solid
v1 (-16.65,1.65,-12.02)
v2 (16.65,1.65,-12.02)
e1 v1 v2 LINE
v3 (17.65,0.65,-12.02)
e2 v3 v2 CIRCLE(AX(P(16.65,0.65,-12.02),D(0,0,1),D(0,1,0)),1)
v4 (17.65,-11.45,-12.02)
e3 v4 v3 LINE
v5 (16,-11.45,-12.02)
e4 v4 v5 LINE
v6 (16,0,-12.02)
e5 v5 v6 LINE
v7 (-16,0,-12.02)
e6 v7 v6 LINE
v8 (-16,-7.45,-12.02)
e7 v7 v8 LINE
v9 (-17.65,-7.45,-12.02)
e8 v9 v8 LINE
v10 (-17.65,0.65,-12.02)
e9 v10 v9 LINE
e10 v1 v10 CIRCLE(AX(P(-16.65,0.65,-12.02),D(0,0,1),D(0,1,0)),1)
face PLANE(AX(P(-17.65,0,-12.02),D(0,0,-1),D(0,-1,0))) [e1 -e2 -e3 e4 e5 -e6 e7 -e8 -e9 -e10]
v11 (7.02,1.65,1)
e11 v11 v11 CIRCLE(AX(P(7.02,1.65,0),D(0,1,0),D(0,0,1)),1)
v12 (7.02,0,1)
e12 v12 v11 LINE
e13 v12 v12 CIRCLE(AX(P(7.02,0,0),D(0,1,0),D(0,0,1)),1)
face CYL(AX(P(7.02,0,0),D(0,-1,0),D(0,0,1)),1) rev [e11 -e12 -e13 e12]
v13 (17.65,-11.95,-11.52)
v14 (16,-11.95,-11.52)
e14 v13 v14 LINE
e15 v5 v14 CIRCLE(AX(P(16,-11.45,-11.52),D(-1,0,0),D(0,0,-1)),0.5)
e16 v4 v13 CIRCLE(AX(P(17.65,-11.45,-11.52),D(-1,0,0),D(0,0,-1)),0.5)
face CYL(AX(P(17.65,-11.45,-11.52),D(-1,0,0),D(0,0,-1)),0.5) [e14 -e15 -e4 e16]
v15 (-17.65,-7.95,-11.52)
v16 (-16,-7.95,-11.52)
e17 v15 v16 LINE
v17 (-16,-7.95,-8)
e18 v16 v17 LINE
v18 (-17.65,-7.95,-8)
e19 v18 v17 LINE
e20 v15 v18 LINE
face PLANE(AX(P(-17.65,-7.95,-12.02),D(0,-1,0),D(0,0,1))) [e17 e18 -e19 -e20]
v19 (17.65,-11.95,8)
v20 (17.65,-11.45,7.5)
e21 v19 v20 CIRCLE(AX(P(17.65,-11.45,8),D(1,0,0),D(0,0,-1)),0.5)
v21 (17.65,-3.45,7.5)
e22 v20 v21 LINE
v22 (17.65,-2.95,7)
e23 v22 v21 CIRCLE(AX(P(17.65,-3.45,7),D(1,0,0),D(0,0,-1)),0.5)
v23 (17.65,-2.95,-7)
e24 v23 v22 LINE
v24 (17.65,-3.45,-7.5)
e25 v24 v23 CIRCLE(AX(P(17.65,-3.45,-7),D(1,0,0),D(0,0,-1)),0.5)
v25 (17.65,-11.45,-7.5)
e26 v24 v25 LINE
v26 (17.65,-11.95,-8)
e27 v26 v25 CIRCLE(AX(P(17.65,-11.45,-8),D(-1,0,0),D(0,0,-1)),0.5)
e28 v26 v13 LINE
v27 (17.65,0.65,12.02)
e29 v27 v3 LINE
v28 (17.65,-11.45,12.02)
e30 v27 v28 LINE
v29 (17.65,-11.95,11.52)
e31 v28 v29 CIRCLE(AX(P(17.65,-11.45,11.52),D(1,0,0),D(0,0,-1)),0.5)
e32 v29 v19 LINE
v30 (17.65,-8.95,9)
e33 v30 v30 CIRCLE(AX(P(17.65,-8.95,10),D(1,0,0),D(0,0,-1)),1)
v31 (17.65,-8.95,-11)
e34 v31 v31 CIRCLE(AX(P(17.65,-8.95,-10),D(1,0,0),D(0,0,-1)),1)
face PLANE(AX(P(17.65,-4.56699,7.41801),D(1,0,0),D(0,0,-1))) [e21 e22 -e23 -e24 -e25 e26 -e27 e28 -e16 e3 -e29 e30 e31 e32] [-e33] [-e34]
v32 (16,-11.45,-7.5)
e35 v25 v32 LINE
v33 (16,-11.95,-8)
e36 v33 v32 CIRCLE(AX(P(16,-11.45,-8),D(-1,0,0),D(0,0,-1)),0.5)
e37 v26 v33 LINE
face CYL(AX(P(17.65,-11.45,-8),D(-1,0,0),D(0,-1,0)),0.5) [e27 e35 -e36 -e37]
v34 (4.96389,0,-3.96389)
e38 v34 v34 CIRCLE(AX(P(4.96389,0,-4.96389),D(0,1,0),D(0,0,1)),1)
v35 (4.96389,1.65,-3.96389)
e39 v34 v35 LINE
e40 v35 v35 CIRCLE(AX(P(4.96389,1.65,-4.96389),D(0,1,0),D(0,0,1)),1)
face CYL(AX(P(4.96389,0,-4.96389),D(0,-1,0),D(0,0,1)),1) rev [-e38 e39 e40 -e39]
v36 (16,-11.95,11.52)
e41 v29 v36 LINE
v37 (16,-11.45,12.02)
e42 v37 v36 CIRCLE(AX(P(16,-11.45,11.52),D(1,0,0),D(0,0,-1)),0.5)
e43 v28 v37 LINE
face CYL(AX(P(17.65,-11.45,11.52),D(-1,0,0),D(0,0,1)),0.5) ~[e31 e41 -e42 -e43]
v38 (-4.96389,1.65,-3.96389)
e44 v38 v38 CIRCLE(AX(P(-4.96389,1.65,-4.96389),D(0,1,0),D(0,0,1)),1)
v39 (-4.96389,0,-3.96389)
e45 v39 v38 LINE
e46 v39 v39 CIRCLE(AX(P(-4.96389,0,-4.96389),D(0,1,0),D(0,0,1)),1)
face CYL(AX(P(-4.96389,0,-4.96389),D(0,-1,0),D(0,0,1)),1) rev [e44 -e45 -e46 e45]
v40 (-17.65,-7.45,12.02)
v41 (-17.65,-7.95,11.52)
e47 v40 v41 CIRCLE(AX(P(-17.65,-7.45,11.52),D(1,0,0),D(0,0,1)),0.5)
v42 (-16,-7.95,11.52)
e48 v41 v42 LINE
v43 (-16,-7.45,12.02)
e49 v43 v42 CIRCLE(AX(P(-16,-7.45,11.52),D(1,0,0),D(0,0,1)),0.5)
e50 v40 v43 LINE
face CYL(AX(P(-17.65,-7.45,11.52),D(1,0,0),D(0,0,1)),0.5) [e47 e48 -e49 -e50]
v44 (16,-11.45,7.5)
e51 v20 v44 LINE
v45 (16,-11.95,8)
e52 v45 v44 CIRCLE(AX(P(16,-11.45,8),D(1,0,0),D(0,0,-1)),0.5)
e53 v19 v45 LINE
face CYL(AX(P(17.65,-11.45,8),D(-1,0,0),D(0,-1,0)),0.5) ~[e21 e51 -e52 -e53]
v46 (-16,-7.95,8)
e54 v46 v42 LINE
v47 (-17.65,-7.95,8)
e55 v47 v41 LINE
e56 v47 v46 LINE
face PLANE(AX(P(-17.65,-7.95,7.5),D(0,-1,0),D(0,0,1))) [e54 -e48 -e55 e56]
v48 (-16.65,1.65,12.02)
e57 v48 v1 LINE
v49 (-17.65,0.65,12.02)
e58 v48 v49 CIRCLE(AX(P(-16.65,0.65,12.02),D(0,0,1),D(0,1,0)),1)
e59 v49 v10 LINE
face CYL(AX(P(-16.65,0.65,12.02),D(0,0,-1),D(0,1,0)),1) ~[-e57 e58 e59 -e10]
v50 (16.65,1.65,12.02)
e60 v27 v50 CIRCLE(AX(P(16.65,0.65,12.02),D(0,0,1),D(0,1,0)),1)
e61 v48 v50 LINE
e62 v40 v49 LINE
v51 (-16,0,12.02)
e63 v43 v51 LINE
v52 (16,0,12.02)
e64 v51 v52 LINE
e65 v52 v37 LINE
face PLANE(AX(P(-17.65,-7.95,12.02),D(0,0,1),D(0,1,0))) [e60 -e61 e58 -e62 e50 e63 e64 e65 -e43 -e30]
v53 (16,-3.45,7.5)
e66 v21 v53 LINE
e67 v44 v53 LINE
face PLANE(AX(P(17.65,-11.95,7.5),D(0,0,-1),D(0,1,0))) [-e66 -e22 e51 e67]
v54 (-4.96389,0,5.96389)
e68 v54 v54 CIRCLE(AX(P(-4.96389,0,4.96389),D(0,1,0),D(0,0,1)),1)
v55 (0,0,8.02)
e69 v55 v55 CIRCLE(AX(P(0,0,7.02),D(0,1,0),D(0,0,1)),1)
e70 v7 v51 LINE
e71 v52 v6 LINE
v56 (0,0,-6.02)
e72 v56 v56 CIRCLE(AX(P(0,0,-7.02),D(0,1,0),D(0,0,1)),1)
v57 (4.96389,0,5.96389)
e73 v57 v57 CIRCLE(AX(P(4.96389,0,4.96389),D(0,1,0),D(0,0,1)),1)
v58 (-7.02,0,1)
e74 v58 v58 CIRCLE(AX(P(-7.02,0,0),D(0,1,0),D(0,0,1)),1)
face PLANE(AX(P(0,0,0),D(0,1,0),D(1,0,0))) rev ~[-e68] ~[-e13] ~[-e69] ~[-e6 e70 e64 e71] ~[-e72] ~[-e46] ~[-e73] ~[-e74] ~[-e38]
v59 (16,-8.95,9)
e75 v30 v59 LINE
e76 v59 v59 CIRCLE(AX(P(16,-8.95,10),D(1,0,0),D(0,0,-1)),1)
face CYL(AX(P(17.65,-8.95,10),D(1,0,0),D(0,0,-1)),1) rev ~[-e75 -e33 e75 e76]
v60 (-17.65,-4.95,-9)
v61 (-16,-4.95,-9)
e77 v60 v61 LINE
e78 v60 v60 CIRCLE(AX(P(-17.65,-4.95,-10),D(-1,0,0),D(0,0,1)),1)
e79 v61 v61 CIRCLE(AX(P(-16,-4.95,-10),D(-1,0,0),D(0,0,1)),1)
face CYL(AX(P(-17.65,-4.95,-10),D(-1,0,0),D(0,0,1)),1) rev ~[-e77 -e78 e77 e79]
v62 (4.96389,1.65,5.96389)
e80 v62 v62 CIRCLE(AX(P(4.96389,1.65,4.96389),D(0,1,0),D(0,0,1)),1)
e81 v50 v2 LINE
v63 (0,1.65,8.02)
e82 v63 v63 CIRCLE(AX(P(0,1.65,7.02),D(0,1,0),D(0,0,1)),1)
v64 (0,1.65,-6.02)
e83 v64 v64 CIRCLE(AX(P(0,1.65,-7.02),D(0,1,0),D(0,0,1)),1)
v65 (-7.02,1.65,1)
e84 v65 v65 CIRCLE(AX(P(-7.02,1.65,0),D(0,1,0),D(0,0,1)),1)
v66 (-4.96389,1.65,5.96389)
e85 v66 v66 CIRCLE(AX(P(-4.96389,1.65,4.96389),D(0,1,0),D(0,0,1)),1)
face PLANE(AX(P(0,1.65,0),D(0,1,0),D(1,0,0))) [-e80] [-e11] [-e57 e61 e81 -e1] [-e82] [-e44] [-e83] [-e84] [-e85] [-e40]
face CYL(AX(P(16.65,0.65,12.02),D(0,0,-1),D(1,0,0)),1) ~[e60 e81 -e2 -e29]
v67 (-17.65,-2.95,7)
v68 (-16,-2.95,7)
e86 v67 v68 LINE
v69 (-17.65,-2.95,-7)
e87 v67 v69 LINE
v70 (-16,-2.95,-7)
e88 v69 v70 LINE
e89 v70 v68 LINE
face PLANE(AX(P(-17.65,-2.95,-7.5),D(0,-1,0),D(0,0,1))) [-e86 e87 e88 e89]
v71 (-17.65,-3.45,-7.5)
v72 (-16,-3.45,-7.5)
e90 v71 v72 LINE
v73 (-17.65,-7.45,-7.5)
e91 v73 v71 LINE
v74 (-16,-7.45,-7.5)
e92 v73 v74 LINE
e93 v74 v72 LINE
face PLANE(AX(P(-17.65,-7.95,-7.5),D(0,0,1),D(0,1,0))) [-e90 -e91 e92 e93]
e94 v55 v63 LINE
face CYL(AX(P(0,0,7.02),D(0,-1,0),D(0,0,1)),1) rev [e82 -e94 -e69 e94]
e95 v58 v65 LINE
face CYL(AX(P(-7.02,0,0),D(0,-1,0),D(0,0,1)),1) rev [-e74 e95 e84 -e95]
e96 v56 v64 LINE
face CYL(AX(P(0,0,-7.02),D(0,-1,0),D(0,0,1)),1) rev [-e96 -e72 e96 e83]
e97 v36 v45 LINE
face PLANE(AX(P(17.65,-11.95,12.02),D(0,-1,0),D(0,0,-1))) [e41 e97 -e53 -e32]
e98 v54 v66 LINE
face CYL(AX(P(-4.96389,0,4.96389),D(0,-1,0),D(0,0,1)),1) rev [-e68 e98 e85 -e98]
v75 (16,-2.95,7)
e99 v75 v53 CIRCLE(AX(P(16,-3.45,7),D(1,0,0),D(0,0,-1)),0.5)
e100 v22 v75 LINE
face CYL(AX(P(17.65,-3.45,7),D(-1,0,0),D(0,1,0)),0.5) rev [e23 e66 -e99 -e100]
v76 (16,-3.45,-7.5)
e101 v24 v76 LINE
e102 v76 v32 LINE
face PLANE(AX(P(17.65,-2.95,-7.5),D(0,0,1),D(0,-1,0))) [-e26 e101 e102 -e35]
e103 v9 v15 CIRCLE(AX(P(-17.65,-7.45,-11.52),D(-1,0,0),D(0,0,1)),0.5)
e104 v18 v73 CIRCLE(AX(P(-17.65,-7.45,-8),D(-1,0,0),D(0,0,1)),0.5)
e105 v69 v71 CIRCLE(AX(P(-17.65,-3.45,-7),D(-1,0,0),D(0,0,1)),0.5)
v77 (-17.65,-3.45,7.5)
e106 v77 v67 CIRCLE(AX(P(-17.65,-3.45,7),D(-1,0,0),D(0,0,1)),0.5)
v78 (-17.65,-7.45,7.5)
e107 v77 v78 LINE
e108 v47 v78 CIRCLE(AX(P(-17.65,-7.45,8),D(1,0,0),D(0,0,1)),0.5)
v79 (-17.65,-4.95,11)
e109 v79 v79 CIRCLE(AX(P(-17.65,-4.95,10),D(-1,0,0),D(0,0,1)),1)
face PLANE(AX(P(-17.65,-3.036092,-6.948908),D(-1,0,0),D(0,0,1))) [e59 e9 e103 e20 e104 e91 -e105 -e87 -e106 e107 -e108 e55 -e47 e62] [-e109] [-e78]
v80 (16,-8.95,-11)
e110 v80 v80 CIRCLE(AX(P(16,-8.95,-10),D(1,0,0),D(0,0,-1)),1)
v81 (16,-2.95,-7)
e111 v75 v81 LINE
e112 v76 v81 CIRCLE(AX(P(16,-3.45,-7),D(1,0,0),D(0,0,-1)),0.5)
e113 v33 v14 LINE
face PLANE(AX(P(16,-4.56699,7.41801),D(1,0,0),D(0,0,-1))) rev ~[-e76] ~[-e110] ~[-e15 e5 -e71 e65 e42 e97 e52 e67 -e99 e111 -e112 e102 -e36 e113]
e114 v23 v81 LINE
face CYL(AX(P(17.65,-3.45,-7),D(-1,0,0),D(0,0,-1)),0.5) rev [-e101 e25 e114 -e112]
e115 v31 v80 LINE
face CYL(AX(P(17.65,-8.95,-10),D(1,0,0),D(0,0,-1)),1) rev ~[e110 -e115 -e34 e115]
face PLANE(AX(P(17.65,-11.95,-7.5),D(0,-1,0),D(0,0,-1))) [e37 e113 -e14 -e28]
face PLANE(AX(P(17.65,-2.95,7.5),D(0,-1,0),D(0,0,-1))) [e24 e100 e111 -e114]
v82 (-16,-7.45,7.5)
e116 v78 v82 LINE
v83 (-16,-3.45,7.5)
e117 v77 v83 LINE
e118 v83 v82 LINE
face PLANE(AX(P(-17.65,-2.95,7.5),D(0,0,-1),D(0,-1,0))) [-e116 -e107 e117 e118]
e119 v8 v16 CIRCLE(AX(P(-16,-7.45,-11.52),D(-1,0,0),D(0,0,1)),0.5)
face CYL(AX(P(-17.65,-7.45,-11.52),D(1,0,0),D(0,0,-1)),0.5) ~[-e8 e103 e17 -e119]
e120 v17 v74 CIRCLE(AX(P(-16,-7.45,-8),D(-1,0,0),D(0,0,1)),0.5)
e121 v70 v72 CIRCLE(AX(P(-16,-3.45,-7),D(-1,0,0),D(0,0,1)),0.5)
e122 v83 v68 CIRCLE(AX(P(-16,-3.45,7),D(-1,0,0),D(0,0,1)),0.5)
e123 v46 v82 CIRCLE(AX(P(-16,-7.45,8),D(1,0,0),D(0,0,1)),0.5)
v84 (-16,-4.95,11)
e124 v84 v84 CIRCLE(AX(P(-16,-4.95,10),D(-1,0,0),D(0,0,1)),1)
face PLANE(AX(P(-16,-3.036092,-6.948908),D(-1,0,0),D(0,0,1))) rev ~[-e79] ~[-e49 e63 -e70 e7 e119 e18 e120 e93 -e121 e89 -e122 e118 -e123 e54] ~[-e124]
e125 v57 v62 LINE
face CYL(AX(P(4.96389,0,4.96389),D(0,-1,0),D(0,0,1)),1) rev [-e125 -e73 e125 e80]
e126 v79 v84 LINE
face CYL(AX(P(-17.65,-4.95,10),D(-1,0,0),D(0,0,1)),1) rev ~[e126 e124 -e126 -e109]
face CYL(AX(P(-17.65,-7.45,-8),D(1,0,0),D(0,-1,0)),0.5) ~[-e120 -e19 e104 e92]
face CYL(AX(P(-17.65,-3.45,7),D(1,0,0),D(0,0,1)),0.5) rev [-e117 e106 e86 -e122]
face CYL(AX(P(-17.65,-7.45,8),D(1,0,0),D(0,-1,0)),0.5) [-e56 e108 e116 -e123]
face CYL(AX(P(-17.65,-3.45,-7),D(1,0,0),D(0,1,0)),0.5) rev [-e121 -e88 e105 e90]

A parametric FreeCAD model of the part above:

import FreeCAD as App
import Part
import Sketcher
from FreeCAD import Vector


def edges_at(feature, points):
    """Names of the edges that pass closest to the given points."""
    edges = feature.Shape.Edges
    near = lambda p: min(range(len(edges)), key=lambda i: edges[i].distToShape(Part.Vertex(*p))[0])
    return sorted({f"Edge{near(p) + 1}" for p in points})


def add_polygon(sketch, points):
    """Adds a closed chain of lines whose ends are joined by coincident constraints."""
    first, n = sketch.GeometryCount, len(points)
    for a, b in zip(points, points[1:] + points[:1]):
        sketch.addGeometry(Part.LineSegment(App.Vector(*a, 0), App.Vector(*b, 0)), False)
    for i in range(n):
        sketch.addConstraint(Sketcher.Constraint("Coincident", first + i, 2, first + (i + 1) % n, 1))

doc = App.newDocument("Part")
body = doc.addObject("PartDesign::Body", "Body")

# Sketch on XZ plane
sketch1 = body.newObject("Sketcher::SketchObject", "Sketch")
sketch1.AttachmentSupport = (doc.getObject("XZ_Plane"), [""])
sketch1.MapMode = "FlatFace"
add_polygon(sketch1, [(-17.65, -12.02), (-17.65, 12.02), (17.65, 12.02), (17.65, -12.02)])  # lines 0-3
sketch1.addGeometry(Part.Circle(Vector(-4.96389, 4.96389, 0), Vector(0, 0, 1), 1), False)  # 4
sketch1.addGeometry(Part.Circle(Vector(0, 7.02, 0), Vector(0, 0, 1), 1), False)  # 5
sketch1.addGeometry(Part.Circle(Vector(4.96389, 4.96389, 0), Vector(0, 0, 1), 1), False)  # 6
sketch1.addGeometry(Part.Circle(Vector(-7.02, 0, 0), Vector(0, 0, 1), 1), False)  # 7
sketch1.addGeometry(Part.Circle(Vector(-4.96389, -4.96389, 0), Vector(0, 0, 1), 1), False)  # 8
sketch1.addGeometry(Part.Circle(Vector(7.02, 0, 0), Vector(0, 0, 1), 1), False)  # 9
sketch1.addGeometry(Part.Circle(Vector(0, -7.02, 0), Vector(0, 0, 1), 1), False)  # 10
sketch1.addGeometry(Part.Circle(Vector(4.96389, -4.96389, 0), Vector(0, 0, 1), 1), False)  # 11
sketch1.addConstraint(Sketcher.Constraint("Vertical", 0))
sketch1.addConstraint(Sketcher.Constraint("Horizontal", 1))
sketch1.addConstraint(Sketcher.Constraint("Vertical", 2))
sketch1.addConstraint(Sketcher.Constraint("Horizontal", 3))
sketch1.addConstraint(Sketcher.Constraint("Equal", 4, 5))
sketch1.addConstraint(Sketcher.Constraint("Equal", 5, 6))
sketch1.addConstraint(Sketcher.Constraint("Equal", 6, 7))
sketch1.addConstraint(Sketcher.Constraint("Equal", 7, 8))
sketch1.addConstraint(Sketcher.Constraint("Equal", 8, 9))
sketch1.addConstraint(Sketcher.Constraint("Equal", 9, 10))
sketch1.addConstraint(Sketcher.Constraint("Equal", 10, 11))
sketch1.addConstraint(Sketcher.Constraint("Symmetric", 6, 3, 8, 3, -1, 1))
sketch1.addConstraint(Sketcher.Constraint("Symmetric", 7, 3, 9, 3, -1, 1))
sketch1.addConstraint(Sketcher.Constraint("Symmetric", 5, 3, 10, 3, -1, 1))
sketch1.addConstraint(Sketcher.Constraint("Symmetric", 4, 3, 11, 3, -1, 1))
sketch1.addConstraint(Sketcher.Constraint("Symmetric", 0, 2, 2, 2, -1, 1))
sketch1.addConstraint(Sketcher.Constraint("Symmetric", 4, 3, 6, 3, -2))
sketch1.addConstraint(Sketcher.Constraint("PointOnObject", 5, 3, -2))
sketch1.addConstraint(Sketcher.Constraint("PointOnObject", 7, 3, -1))
sketch1.addConstraint(Sketcher.Constraint("Diameter", 4, 2.0))
sketch1.addConstraint(Sketcher.Constraint("DistanceX", 1, 1, 1, 2, 35.3))
sketch1.addConstraint(Sketcher.Constraint("DistanceY", 5, 3, 0, 2, 5.0))
sketch1.addConstraint(Sketcher.Constraint("DistanceY", 0, 1, 0, 2, 24.04))
sketch1.addConstraint(Sketcher.Constraint("DistanceX", 7, 3, -1, 1, 7.02))
sketch1.addConstraint(Sketcher.Constraint("DistanceX", 4, 3, -1, 1, 4.96389))
sketch1.addConstraint(Sketcher.Constraint("DistanceY", -1, 1, 4, 3, 4.96389))
pad1 = body.newObject("PartDesign::Pad", "Pad")
pad1.Profile = sketch1
pad1.Length = 1.65
pad1.Reversed = True

# Sketch on YZ plane
sketch2 = body.newObject("Sketcher::SketchObject", "Sketch001")
sketch2.AttachmentSupport = (doc.getObject("YZ_Plane"), [""])
sketch2.MapMode = "FlatFace"
sketch2.AttachmentOffset = App.Placement(Vector(0, 0, 17.65), App.Rotation())
add_polygon(sketch2, [(-2.95, 7.5), (-2.95, -7.5), (-11.95, -7.5), (-11.95, -12.02), (0, -12.02), (0, 12.02), (-11.95, 12.02), (-11.95, 7.5)])  # lines 0-7
sketch2.addGeometry(Part.Circle(Vector(-8.95, 10, 0), Vector(0, 0, 1), 1), False)  # 8
sketch2.addGeometry(Part.Circle(Vector(-8.95, -10, 0), Vector(0, 0, 1), 1), False)  # 9
sketch2.addConstraint(Sketcher.Constraint("Vertical", 0))
sketch2.addConstraint(Sketcher.Constraint("Horizontal", 1))
sketch2.addConstraint(Sketcher.Constraint("Vertical", 2))
sketch2.addConstraint(Sketcher.Constraint("Horizontal", 3))
sketch2.addConstraint(Sketcher.Constraint("Vertical", 4))
sketch2.addConstraint(Sketcher.Constraint("Horizontal", 5))
sketch2.addConstraint(Sketcher.Constraint("Vertical", 6))
sketch2.addConstraint(Sketcher.Constraint("Horizontal", 7))
sketch2.addConstraint(Sketcher.Constraint("Equal", 8, 9))
sketch2.addConstraint(Sketcher.Constraint("Symmetric", 3, 2, 4, 2, -1, 1))
sketch2.addConstraint(Sketcher.Constraint("Symmetric", 8, 3, 9, 3, -1))
sketch2.addConstraint(Sketcher.Constraint("Symmetric", 1, 2, 6, 2, -1))
sketch2.addConstraint(Sketcher.Constraint("Diameter", 8, 2.0))
sketch2.addConstraint(Sketcher.Constraint("DistanceX", 1, 2, 1, 1, 9.0))
sketch2.addConstraint(Sketcher.Constraint("DistanceY", 0, 2, 0, 1, 15.0))
sketch2.addConstraint(Sketcher.Constraint("DistanceY", -1, 1, 8, 3, 10.0))
sketch2.addConstraint(Sketcher.Constraint("DistanceX", 9, 3, 0, 2, 6.0))
sketch2.addConstraint(Sketcher.Constraint("DistanceX", 3, 1, 3, 2, 11.95))
sketch2.addConstraint(Sketcher.Constraint("DistanceY", 2, 2, 2, 1, 4.52))
pad2 = body.newObject("PartDesign::Pad", "Pad001")
pad2.Profile = sketch2
pad2.Length = 1.65
pad2.Reversed = True

# Sketch on YZ plane
sketch3 = body.newObject("Sketcher::SketchObject", "Sketch002")
sketch3.AttachmentSupport = (doc.getObject("YZ_Plane"), [""])
sketch3.MapMode = "FlatFace"
sketch3.AttachmentOffset = App.Placement(Vector(0, 0, -17.65), App.Rotation())
add_polygon(sketch3, [(-2.95, -7.5), (-2.95, 7.5), (-7.95, 7.5), (-7.95, 12.02), (0, 12.02), (0, -12.02), (-7.95, -12.02), (-7.95, -7.5)])  # lines 0-7
sketch3.addGeometry(Part.Circle(Vector(-4.95, -10, 0), Vector(0, 0, 1), 1), False)  # 8
sketch3.addGeometry(Part.Circle(Vector(-4.95, 10, 0), Vector(0, 0, 1), 1), False)  # 9
sketch3.addConstraint(Sketcher.Constraint("Vertical", 0))
sketch3.addConstraint(Sketcher.Constraint("Horizontal", 1))
sketch3.addConstraint(Sketcher.Constraint("Vertical", 2))
sketch3.addConstraint(Sketcher.Constraint("Horizontal", 3))
sketch3.addConstraint(Sketcher.Constraint("Vertical", 4))
sketch3.addConstraint(Sketcher.Constraint("Horizontal", 5))
sketch3.addConstraint(Sketcher.Constraint("Vertical", 6))
sketch3.addConstraint(Sketcher.Constraint("Horizontal", 7))
sketch3.addConstraint(Sketcher.Constraint("Equal", 8, 9))
sketch3.addConstraint(Sketcher.Constraint("Symmetric", 3, 2, 4, 2, -1, 1))
sketch3.addConstraint(Sketcher.Constraint("Symmetric", 8, 3, 9, 3, -1))
sketch3.addConstraint(Sketcher.Constraint("Symmetric", 1, 2, 6, 2, -1))
sketch3.addConstraint(Sketcher.Constraint("Diameter", 8, 2.0))
sketch3.addConstraint(Sketcher.Constraint("DistanceX", 1, 2, 1, 1, 5.0))
sketch3.addConstraint(Sketcher.Constraint("DistanceY", 0, 1, 0, 2, 15.0))
sketch3.addConstraint(Sketcher.Constraint("DistanceY", 8, 3, -1, 1, 10.0))
sketch3.addConstraint(Sketcher.Constraint("DistanceX", 9, 3, 0, 2, 2.0))
sketch3.addConstraint(Sketcher.Constraint("DistanceX", 3, 1, 3, 2, 7.95))
sketch3.addConstraint(Sketcher.Constraint("DistanceY", 2, 1, 2, 2, 4.52))
pad3 = body.newObject("PartDesign::Pad", "Pad002")
pad3.Profile = sketch3
pad3.Length = 1.65
doc.recompute()

fillet = body.newObject("PartDesign::Fillet", "Fillet")
fillet.Base = (pad3, edges_at(pad3, [(17.65, 1.65, 0)]))
fillet.Radius = 1
doc.recompute()

fillet2 = body.newObject("PartDesign::Fillet", "Fillet001")
fillet2.Base = (fillet, edges_at(fillet, [(-17.65, 1.65, 0)]))
fillet2.Radius = 1
doc.recompute()

fillet3 = body.newObject("PartDesign::Fillet", "Fillet002")
fillet3.Base = (fillet2, edges_at(fillet2, [
    (16.825, -2.95, -7.5),
    (16.825, -2.95, 7.5),
    (16.825, -11.95, 7.5),
    (16.825, -11.95, 12.02),
    (16.825, -11.95, -12.02),
    (16.825, -11.95, -7.5),
    (-16.825, -2.95, 7.5),
    (-16.825, -2.95, -7.5),
    (-16.825, -7.95, -7.5),
    (-16.825, -7.95, -12.02),
    (-16.825, -7.95, 12.02),
    (-16.825, -7.95, 7.5),
]))
fillet3.Radius = 0.5

doc.recompute()
